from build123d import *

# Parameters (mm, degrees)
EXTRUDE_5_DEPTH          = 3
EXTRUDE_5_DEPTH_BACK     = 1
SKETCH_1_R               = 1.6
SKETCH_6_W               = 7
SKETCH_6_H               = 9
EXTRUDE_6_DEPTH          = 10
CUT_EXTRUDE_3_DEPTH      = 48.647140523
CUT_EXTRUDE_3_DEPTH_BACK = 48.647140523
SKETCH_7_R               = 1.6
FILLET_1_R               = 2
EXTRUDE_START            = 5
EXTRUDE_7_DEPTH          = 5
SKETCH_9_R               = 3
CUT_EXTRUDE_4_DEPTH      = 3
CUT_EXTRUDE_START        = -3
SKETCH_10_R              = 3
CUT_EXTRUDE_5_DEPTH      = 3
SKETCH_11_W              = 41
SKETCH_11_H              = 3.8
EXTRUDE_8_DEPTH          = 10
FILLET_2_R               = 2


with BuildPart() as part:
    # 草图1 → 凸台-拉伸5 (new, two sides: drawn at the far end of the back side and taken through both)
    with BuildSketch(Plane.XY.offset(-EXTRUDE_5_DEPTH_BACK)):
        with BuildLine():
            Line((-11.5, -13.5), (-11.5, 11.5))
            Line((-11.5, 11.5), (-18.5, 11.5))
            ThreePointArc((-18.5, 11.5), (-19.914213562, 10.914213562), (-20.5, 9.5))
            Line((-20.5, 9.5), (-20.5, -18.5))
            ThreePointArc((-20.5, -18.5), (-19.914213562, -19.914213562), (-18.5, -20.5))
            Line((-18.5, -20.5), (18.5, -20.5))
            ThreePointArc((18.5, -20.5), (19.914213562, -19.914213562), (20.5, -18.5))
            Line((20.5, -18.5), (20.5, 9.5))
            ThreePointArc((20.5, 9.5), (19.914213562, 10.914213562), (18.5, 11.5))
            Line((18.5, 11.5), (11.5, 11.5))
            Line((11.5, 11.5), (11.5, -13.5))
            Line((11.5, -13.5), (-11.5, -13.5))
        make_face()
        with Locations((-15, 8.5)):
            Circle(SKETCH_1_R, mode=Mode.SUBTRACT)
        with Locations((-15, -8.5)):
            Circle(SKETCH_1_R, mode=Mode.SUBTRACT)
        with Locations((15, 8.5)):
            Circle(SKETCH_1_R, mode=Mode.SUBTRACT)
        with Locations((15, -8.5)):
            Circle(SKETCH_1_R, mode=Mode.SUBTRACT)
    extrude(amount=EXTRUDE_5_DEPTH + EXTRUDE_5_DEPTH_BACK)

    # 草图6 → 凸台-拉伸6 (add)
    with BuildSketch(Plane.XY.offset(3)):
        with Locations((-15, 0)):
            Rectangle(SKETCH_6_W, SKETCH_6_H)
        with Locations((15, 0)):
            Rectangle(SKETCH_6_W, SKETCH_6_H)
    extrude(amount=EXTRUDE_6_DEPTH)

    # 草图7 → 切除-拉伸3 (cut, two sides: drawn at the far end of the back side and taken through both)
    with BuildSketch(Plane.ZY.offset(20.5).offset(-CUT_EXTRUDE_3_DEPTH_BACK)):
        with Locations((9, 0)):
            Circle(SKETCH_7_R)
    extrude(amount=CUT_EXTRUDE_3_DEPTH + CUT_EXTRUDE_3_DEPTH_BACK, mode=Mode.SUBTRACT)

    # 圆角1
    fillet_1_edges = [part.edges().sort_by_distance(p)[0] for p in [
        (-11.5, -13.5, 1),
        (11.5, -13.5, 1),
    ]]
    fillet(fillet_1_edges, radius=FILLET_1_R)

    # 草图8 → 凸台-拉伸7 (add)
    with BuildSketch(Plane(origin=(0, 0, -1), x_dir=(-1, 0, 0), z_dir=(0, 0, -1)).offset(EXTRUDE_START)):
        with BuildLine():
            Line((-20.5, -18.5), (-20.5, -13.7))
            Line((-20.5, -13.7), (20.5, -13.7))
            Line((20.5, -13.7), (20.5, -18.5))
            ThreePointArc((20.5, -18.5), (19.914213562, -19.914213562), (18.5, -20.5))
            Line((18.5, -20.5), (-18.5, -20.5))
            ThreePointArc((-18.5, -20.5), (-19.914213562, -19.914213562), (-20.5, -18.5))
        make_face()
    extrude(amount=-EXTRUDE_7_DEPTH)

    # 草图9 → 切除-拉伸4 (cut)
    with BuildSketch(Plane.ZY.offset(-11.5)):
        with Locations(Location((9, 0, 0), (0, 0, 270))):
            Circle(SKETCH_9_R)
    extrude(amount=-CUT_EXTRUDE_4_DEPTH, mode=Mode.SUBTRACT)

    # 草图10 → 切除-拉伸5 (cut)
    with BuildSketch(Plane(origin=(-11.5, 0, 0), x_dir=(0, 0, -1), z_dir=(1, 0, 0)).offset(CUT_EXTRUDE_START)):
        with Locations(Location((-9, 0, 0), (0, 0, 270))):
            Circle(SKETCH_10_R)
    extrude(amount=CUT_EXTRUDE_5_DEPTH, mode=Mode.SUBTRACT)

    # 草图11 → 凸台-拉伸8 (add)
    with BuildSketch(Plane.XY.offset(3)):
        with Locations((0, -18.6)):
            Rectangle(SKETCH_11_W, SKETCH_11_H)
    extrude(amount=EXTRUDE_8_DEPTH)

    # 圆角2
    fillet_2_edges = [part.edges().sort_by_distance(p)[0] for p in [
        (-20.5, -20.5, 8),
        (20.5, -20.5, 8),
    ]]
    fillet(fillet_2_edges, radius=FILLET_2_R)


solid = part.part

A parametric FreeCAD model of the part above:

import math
import FreeCAD as App
import Part
import Sketcher
from FreeCAD import Vector
Q = App.Units.Quantity


def edges_at(feature, points):
    """Names of the edges that pass closest to the given points."""
    edges = feature.Shape.Edges
    near = lambda p: min(range(len(edges)), key=lambda i: edges[i].distToShape(Part.Vertex(*p))[0])
    return sorted({f"Edge{near(p) + 1}" for p in points})


def add_polygon(sketch, points):
    """Adds a closed chain of lines whose ends are joined by coincident constraints."""
    first, n = sketch.GeometryCount, len(points)
    for a, b in zip(points, points[1:] + points[:1]):
        sketch.addGeometry(Part.LineSegment(App.Vector(*a, 0), App.Vector(*b, 0)), False)
    for i in range(n):
        sketch.addConstraint(Sketcher.Constraint("Coincident", first + i, 2, first + (i + 1) % n, 1))

doc = App.newDocument("Part")
body = doc.addObject("PartDesign::Body", "Body")

# Sketch on XY plane
sketch1 = body.newObject("Sketcher::SketchObject", "Sketch")
sketch1.AttachmentSupport = (doc.getObject("XY_Plane"), [""])
sketch1.MapMode = "FlatFace"
sketch1.addGeometry([
    Part.LineSegment(Vector(-11.5, -13.5, 0), Vector(-11.5, 11.5, 0)),  # 0
    Part.LineSegment(Vector(-11.5, 11.5, 0), Vector(-18.5, 11.5, 0)),  # 1
    Part.ArcOfCircle(Part.Circle(Vector(-18.5, 9.5, 0), Vector(0, 0, 1), 2), math.radians(90), math.radians(180)),  # 2
    Part.LineSegment(Vector(-20.5, 9.5, 0), Vector(-20.5, -18.5, 0)),  # 3
    Part.ArcOfCircle(Part.Circle(Vector(-18.5, -18.5, 0), Vector(0, 0, 1), 2), math.radians(-180), math.radians(-90)),  # 4
    Part.LineSegment(Vector(-18.5, -20.5, 0), Vector(18.5, -20.5, 0)),  # 5
    Part.ArcOfCircle(Part.Circle(Vector(18.5, -18.5, 0), Vector(0, 0, 1), 2), math.radians(-90), math.radians(0)),  # 6
    Part.LineSegment(Vector(20.5, -18.5, 0), Vector(20.5, 9.5, 0)),  # 7
    Part.ArcOfCircle(Part.Circle(Vector(18.5, 9.5, 0), Vector(0, 0, 1), 2), math.radians(0), math.radians(90)),  # 8
    Part.LineSegment(Vector(18.5, 11.5, 0), Vector(11.5, 11.5, 0)),  # 9
    Part.LineSegment(Vector(11.5, 11.5, 0), Vector(11.5, -13.5, 0)),  # 10
    Part.LineSegment(Vector(11.5, -13.5, 0), Vector(-11.5, -13.5, 0)),  # 11
    Part.Circle(Vector(-15, -8.5, 0), Vector(0, 0, 1), 1.6),  # 12
    Part.Circle(Vector(15, -8.5, 0), Vector(0, 0, 1), 1.6),  # 13
    Part.Circle(Vector(-15, 8.5, 0), Vector(0, 0, 1), 1.6),  # 14
    Part.Circle(Vector(15, 8.5, 0), Vector(0, 0, 1), 1.6),  # 15
], False)
sketch1.addConstraint([
    Sketcher.Constraint("Coincident", 0, 2, 1, 1),
    Sketcher.Constraint("Tangent", 1, 2, 2, 1),
    Sketcher.Constraint("Tangent", 2, 2, 3, 1),
    Sketcher.Constraint("Tangent", 3, 2, 4, 1),
    Sketcher.Constraint("Tangent", 4, 2, 5, 1),
    Sketcher.Constraint("Tangent", 5, 2, 6, 1),
    Sketcher.Constraint("Tangent", 6, 2, 7, 1),
    Sketcher.Constraint("Tangent", 7, 2, 8, 1),
    Sketcher.Constraint("Tangent", 8, 2, 9, 1),
    Sketcher.Constraint("Coincident", 9, 2, 10, 1),
    Sketcher.Constraint("Coincident", 10, 2, 11, 1),
    Sketcher.Constraint("Coincident", 11, 2, 0, 1),
    Sketcher.Constraint("Vertical", 0),
    Sketcher.Constraint("Horizontal", 1),
    Sketcher.Constraint("Vertical", 3),
    Sketcher.Constraint("Horizontal", 5),
    Sketcher.Constraint("Vertical", 7),
    Sketcher.Constraint("Horizontal", 9),
    Sketcher.Constraint("Vertical", 10),
    Sketcher.Constraint("Horizontal", 11),
    Sketcher.Constraint("Equal", 2, 4),
    Sketcher.Constraint("Equal", 4, 6),
    Sketcher.Constraint("Equal", 6, 8),
    Sketcher.Constraint("Equal", 12, 13),
    Sketcher.Constraint("Equal", 13, 14),
    Sketcher.Constraint("Equal", 14, 15),
    Sketcher.Constraint("Symmetric", 13, 3, 14, 3, -1, 1),
    Sketcher.Constraint("Symmetric", 12, 3, 15, 3, -1, 1),
    Sketcher.Constraint("Symmetric", 2, 3, 8, 3, -2),
    Sketcher.Constraint("Symmetric", 12, 3, 13, 3, -2),
    Sketcher.Constraint("Equal", 1, 9),
    Sketcher.Constraint("Radius", 2, Q("2 mm")),
    Sketcher.Constraint("Diameter", 12, Q("3.2 mm")),
    Sketcher.Constraint("DistanceX", 1, 2, 1, 1, Q("7 mm")),
    Sketcher.Constraint("DistanceX", 5, 1, 5, 2, Q("37 mm")),
    Sketcher.Constraint("DistanceY", 0, 1, 0, 2, Q("25 mm")),
    Sketcher.Constraint("DistanceY", 3, 2, 3, 1, Q("28 mm")),
    Sketcher.Constraint("DistanceX", 12, 3, -1, 1, Q("15 mm")),
    Sketcher.Constraint("DistanceY", 4, 3, 12, 3, Q("10 mm")),
    Sketcher.Constraint("DistanceY", 14, 3, 2, 3, Q("1 mm")),
])
pad1 = body.newObject("PartDesign::Pad", "Pad")
pad1.Profile = sketch1
pad1.Type = "TwoLengths"
pad1.Length = 3
pad1.Length2 = 1

# Sketch on XY plane
sketch2 = body.newObject("Sketcher::SketchObject", "Sketch001")
sketch2.AttachmentSupport = (doc.getObject("XY_Plane"), [""])
sketch2.MapMode = "FlatFace"
sketch2.AttachmentOffset = App.Placement(Vector(0, 0, 3), App.Rotation())
add_polygon(sketch2, [(-18, 4), (-18, -4), (-12, -4), (-12, 4)])  # lines 0-3
add_polygon(sketch2, [(12, 4), (12, -4), (18, -4), (18, 4)])  # lines 4-7
sketch2.addConstraint([
    Sketcher.Constraint("Vertical", 0),
    Sketcher.Constraint("Horizontal", 1),
    Sketcher.Constraint("Vertical", 2),
    Sketcher.Constraint("Horizontal", 3),
    Sketcher.Constraint("Vertical", 4),
    Sketcher.Constraint("Horizontal", 5),
    Sketcher.Constraint("Vertical", 6),
    Sketcher.Constraint("Horizontal", 7),
    Sketcher.Constraint("Symmetric", 2, 2, 4, 2, -1, 1),
    Sketcher.Constraint("Symmetric", 0, 2, 6, 2, -1, 1),
    Sketcher.Constraint("Horizontal", 1, 2, 4, 2),
    Sketcher.Constraint("DistanceX", 1, 1, 1, 2, Q("7 mm")),
    Sketcher.Constraint("DistanceY", 0, 2, 0, 1, Q("9 mm")),
    Sketcher.Constraint("DistanceX", 1, 2, 4, 2, Q("23 mm")),
])
pad2 = body.newObject("PartDesign::Pad", "Pad001")
pad2.Profile = sketch2
pad2.Length = 10

# Sketch on YZ plane
sketch3 = body.newObject("Sketcher::SketchObject", "Sketch002")
sketch3.AttachmentSupport = (doc.getObject("YZ_Plane"), [""])
sketch3.MapMode = "FlatFace"
sketch3.AttachmentOffset = App.Placement(Vector(0, 0, -20.5), App.Rotation())
sketch3.addGeometry(Part.Circle(Vector(0, 9, 0), Vector(0, 0, 1), 1.6), False)
sketch3.addConstraint([
    Sketcher.Constraint("PointOnObject", 0, 3, -2),
    Sketcher.Constraint("Diameter", 0, Q("3.2 mm")),
    Sketcher.Constraint("DistanceY", -1, 1, 0, 3, Q("9 mm")),
])
pocket1 = body.newObject("PartDesign::Pocket", "Pocket")
pocket1.Profile = sketch3
pocket1.Type = "ThroughAll"
pocket1.Midplane = True
doc.recompute()

fillet = body.newObject("PartDesign::Fillet", "Fillet")
fillet.Base = (pocket1, edges_at(pocket1, [(-11.5, -13.5, 1), (11.5, -13.5, 1)]))
fillet.Radius = 2

# Sketch on XY plane
sketch4 = body.newObject("Sketcher::SketchObject", "Sketch003")
sketch4.AttachmentSupport = (doc.getObject("XY_Plane"), [""])
sketch4.MapMode = "FlatFace"
sketch4.AttachmentOffset = App.Placement(Vector(0, 0, -6), App.Rotation())
sketch4.addGeometry([
    Part.LineSegment(Vector(20.5, -13.7, 0), Vector(20.5, -18.5, 0)),  # 0
    Part.ArcOfCircle(Part.Circle(Vector(18.5, -18.5, 0), Vector(0, 0, 1), 2), math.radians(-90), math.radians(0)),  # 1
    Part.LineSegment(Vector(18.5, -20.5, 0), Vector(-18.5, -20.5, 0)),  # 2
    Part.ArcOfCircle(Part.Circle(Vector(-18.5, -18.5, 0), Vector(0, 0, 1), 2), math.radians(-180), math.radians(-90)),  # 3
    Part.LineSegment(Vector(-20.5, -18.5, 0), Vector(-20.5, -13.7, 0)),  # 4
    Part.LineSegment(Vector(-20.5, -13.7, 0), Vector(20.5, -13.7, 0)),  # 5
], False)
sketch4.addConstraint([
    Sketcher.Constraint("Tangent", 0, 2, 1, 2),
    Sketcher.Constraint("Tangent", 1, 1, 2, 1),
    Sketcher.Constraint("Tangent", 2, 2, 3, 2),
    Sketcher.Constraint("Tangent", 3, 1, 4, 1),
    Sketcher.Constraint("Coincident", 4, 2, 5, 1),
    Sketcher.Constraint("Coincident", 5, 2, 0, 1),
    Sketcher.Constraint("Vertical", 0),
    Sketcher.Constraint("Horizontal", 2),
    Sketcher.Constraint("Vertical", 4),
    Sketcher.Constraint("Horizontal", 5),
    Sketcher.Constraint("Equal", 1, 3),
    Sketcher.Constraint("Radius", 1, Q("2 mm")),
    Sketcher.Constraint("DistanceX", 2, 2, 2, 1, Q("37 mm")),
    Sketcher.Constraint("DistanceY", 0, 2, 0, 1, Q("4.8 mm")),
    Sketcher.Constraint("DistanceX", -1, 1, 1, 3, Q("18.5 mm")),
    Sketcher.Constraint("DistanceY", 1, 3, -1, 1, Q("18.5 mm")),
])
pad3 = body.newObject("PartDesign::Pad", "Pad002")
pad3.Profile = sketch4
pad3.Length = 5

# Sketch on YZ plane
sketch5 = body.newObject("Sketcher::SketchObject", "Sketch004")
sketch5.AttachmentSupport = (doc.getObject("YZ_Plane"), [""])
sketch5.MapMode = "FlatFace"
sketch5.AttachmentOffset = App.Placement(Vector(0, 0, 11.5), App.Rotation())
sketch5.addGeometry(Part.Circle(Vector(0, 9, 0), Vector(0, 0, 1), 3), False)
sketch5.addConstraint([
    Sketcher.Constraint("PointOnObject", 0, 3, -2),
    Sketcher.Constraint("Diameter", 0, Q("6 mm")),
    Sketcher.Constraint("DistanceY", -1, 1, 0, 3, Q("9 mm")),
])
pocket2 = body.newObject("PartDesign::Pocket", "Pocket001")
pocket2.Profile = sketch5
pocket2.Length = 3
pocket2.Reversed = True

# Sketch on YZ plane
sketch6 = body.newObject("Sketcher::SketchObject", "Sketch005")
sketch6.AttachmentSupport = (doc.getObject("YZ_Plane"), [""])
sketch6.MapMode = "FlatFace"
sketch6.AttachmentOffset = App.Placement(Vector(0, 0, -14.5), App.Rotation())
sketch6.addGeometry(Part.Circle(Vector(0, 9, 0), Vector(0, 0, 1), 3), False)
sketch6.addConstraint([
    Sketcher.Constraint("PointOnObject", 0, 3, -2),
    Sketcher.Constraint("Diameter", 0, Q("6 mm")),
    Sketcher.Constraint("DistanceY", -1, 1, 0, 3, Q("9 mm")),
])
pocket3 = body.newObject("PartDesign::Pocket", "Pocket002")
pocket3.Profile = sketch6
pocket3.Length = 3
pocket3.Reversed = True

# Sketch on XY plane
sketch7 = body.newObject("Sketcher::SketchObject", "Sketch006")
sketch7.AttachmentSupport = (doc.getObject("XY_Plane"), [""])
sketch7.MapMode = "FlatFace"
sketch7.AttachmentOffset = App.Placement(Vector(0, 0, 3), App.Rotation())
add_polygon(sketch7, [(-20.5, -16.7), (-20.5, -20.5), (20.5, -20.5), (20.5, -16.7)])  # lines 0-3
sketch7.addConstraint([
    Sketcher.Constraint("Vertical", 0),
    Sketcher.Constraint("Horizontal", 1),
    Sketcher.Constraint("Vertical", 2),
    Sketcher.Constraint("Horizontal", 3),
    Sketcher.Constraint("DistanceX", 1, 1, 1, 2, Q("41 mm")),
    Sketcher.Constraint("DistanceY", 0, 2, 0, 1, Q("3.8 mm")),
    Sketcher.Constraint("DistanceX", 0, 2, -1, 1, Q("20.5 mm")),
    Sketcher.Constraint("DistanceY", 0, 2, -1, 1, Q("20.5 mm")),
])
pad4 = body.newObject("PartDesign::Pad", "Pad003")
pad4.Profile = sketch7
pad4.Length = 10
doc.recompute()

fillet2 = body.newObject("PartDesign::Fillet", "Fillet001")
fillet2.Base = (pad4, edges_at(pad4, [(-20.5, -20.5, 8), (20.5, -20.5, 8)]))
fillet2.Radius = 2

doc.recompute()
